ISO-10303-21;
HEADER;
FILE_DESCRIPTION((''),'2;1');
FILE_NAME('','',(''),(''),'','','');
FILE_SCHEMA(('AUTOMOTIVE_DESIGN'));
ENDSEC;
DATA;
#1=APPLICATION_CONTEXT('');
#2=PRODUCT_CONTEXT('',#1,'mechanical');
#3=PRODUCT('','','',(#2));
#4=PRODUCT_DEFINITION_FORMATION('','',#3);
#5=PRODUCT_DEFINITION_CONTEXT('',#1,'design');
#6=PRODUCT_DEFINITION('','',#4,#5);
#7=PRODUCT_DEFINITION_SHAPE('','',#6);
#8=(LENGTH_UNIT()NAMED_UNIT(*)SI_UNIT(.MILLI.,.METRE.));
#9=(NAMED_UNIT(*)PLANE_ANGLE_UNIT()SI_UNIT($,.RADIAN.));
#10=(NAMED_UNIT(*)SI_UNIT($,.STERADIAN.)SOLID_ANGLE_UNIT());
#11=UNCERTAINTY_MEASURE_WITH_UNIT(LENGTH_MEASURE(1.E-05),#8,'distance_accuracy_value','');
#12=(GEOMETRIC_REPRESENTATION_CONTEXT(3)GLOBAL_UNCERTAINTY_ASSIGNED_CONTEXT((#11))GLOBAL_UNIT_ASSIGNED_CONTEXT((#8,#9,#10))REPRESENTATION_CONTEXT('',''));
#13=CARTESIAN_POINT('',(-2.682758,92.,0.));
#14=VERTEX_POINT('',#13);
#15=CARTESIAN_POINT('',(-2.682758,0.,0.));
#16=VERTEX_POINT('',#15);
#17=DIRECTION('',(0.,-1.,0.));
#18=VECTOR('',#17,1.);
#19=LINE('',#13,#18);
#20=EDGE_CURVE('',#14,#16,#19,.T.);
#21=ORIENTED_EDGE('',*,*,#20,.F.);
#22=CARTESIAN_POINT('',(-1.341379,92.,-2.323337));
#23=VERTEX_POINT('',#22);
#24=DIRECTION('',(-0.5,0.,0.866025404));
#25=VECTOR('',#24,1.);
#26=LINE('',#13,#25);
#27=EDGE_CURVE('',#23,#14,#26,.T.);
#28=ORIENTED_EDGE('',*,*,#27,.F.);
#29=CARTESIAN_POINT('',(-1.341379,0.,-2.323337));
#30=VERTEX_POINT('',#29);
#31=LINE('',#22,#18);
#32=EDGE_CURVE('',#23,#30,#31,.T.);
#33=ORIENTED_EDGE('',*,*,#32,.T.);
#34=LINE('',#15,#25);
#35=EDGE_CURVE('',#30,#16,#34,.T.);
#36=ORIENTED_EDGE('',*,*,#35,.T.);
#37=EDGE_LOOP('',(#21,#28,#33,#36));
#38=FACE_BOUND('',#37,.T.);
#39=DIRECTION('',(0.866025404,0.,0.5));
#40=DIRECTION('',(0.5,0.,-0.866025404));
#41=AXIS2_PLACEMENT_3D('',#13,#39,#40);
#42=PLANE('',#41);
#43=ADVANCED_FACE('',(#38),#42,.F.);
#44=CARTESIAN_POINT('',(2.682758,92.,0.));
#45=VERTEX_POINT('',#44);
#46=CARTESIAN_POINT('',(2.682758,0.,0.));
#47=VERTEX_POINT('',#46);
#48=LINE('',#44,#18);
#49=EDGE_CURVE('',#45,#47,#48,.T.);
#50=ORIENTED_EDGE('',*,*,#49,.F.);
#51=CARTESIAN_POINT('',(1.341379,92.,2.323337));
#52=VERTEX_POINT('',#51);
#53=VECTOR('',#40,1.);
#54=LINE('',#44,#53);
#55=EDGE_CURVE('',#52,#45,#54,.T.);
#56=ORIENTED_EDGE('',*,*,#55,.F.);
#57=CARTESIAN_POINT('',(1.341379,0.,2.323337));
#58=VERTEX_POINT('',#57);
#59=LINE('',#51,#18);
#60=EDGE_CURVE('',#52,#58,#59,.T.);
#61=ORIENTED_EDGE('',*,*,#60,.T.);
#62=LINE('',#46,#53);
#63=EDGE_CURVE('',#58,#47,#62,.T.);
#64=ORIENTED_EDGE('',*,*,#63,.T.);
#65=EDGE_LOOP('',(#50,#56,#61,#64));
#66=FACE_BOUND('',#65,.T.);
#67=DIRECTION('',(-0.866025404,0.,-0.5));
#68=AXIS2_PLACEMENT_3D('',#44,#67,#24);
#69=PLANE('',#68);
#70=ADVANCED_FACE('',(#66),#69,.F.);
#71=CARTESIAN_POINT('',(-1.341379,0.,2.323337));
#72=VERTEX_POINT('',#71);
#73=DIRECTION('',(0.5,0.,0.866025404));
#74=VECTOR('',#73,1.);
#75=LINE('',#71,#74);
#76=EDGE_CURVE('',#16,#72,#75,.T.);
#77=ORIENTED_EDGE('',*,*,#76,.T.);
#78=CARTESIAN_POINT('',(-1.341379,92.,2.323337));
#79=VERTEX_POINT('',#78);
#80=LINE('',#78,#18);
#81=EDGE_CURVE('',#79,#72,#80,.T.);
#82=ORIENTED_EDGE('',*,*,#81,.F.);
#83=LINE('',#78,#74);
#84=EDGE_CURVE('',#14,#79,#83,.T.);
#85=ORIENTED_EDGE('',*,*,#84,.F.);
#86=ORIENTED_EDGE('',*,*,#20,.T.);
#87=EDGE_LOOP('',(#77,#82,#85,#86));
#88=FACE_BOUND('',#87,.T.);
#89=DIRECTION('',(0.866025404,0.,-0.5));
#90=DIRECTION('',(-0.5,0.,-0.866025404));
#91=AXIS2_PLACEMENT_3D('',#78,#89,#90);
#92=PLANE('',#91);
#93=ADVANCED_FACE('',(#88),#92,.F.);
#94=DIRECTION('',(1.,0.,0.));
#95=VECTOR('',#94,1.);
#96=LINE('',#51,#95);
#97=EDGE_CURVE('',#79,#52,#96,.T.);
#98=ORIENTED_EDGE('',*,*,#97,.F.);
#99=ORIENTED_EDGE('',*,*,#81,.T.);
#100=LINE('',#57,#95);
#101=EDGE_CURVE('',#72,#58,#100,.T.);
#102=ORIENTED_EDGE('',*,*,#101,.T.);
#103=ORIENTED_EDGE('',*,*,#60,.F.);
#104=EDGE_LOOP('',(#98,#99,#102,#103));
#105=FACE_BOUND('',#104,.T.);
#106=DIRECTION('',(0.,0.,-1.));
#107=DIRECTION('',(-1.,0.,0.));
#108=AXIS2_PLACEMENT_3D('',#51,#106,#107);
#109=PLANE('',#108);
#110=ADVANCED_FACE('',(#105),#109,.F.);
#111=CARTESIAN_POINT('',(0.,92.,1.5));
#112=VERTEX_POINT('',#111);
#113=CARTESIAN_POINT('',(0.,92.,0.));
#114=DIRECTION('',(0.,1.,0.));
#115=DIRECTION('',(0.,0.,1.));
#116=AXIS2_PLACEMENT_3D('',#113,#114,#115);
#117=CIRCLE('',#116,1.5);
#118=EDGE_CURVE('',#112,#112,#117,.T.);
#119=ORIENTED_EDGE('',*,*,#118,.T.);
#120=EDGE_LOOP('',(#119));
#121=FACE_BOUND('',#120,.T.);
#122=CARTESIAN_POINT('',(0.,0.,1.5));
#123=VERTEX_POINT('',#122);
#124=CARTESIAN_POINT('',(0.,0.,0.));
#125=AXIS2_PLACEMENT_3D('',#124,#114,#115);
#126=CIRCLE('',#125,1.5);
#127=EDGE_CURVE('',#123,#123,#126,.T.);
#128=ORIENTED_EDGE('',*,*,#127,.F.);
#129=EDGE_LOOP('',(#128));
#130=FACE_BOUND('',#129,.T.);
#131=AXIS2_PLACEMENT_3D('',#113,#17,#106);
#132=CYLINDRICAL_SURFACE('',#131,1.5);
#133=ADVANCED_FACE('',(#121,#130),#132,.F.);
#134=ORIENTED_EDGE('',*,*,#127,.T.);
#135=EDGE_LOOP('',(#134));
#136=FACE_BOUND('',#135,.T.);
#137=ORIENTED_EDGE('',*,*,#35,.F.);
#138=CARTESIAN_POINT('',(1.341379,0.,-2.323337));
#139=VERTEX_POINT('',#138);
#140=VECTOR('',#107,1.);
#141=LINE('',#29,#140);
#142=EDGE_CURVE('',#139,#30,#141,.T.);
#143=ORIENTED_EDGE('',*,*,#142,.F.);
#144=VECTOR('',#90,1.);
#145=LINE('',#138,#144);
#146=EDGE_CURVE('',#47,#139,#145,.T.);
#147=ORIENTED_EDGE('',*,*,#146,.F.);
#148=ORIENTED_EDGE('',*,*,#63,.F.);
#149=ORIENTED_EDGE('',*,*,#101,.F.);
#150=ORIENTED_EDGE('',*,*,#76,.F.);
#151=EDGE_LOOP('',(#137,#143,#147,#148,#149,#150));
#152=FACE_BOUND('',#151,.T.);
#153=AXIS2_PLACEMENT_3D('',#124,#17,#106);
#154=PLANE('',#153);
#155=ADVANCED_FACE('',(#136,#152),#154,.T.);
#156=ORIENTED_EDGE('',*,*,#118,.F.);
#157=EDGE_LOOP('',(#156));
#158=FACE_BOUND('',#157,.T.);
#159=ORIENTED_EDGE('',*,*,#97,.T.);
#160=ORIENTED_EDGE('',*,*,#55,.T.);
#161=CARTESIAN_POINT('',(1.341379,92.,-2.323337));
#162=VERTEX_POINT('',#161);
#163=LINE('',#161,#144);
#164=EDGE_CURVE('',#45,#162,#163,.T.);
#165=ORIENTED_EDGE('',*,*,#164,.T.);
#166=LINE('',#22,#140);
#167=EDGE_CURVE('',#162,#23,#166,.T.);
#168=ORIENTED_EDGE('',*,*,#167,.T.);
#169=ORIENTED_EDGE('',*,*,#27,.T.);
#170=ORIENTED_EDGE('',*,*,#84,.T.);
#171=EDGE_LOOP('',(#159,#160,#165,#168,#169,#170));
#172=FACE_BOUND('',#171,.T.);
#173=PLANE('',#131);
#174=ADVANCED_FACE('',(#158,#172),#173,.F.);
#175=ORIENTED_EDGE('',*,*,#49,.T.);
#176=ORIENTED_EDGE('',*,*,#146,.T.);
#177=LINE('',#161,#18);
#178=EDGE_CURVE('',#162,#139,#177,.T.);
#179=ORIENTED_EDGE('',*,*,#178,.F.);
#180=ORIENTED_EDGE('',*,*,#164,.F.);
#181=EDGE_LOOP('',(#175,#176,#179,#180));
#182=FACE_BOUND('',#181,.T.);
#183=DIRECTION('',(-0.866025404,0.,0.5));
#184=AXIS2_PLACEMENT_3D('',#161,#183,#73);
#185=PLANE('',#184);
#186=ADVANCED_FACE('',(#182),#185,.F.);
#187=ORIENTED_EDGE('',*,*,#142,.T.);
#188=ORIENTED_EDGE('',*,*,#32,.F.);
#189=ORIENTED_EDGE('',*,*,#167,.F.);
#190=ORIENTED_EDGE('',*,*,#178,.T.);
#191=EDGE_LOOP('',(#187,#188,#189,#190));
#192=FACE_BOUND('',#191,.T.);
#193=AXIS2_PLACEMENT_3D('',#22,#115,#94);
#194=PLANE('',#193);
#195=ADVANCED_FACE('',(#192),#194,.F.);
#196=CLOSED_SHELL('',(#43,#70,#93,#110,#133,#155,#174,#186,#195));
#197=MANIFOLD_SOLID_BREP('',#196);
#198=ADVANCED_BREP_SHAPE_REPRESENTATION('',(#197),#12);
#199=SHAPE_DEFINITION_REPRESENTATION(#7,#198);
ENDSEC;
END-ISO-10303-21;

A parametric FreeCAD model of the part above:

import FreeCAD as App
import Part
import Sketcher
Q = App.Units.Quantity

doc = App.newDocument("Part")
body = doc.addObject("PartDesign::Body", "Body")

# Sketch on XZ plane
sketch1 = doc.addObject("Sketcher::SketchObject", "Sketch")
body.addObject(sketch1)
sketch1.AttachmentSupport = (doc.XZ_Plane, [""])
sketch1.MapMode = "FlatFace"
sketch1.addGeometry([
    Part.LineSegment(App.Vector(2.682758, 0, 0), App.Vector(1.341379, -2.323337, 0)),  # 0
    Part.LineSegment(App.Vector(1.341379, -2.323337, 0), App.Vector(-1.341379, -2.323337, 0)),  # 1
    Part.LineSegment(App.Vector(-1.341379, -2.323337, 0), App.Vector(-2.682758, 0, 0)),  # 2
    Part.LineSegment(App.Vector(-2.682758, 0, 0), App.Vector(-1.341379, 2.323337, 0)),  # 3
    Part.LineSegment(App.Vector(-1.341379, 2.323337, 0), App.Vector(1.341379, 2.323337, 0)),  # 4
    Part.LineSegment(App.Vector(1.341379, 2.323337, 0), App.Vector(2.682758, 0, 0)),  # 5
    Part.Circle(App.Vector(0, 0, 0), App.Vector(0, 0, 1), 1.5),  # 6
], False)
sketch1.addConstraint([
    Sketcher.Constraint("Coincident", 0, 2, 1, 1),
    Sketcher.Constraint("Coincident", 1, 2, 2, 1),
    Sketcher.Constraint("Coincident", 2, 2, 3, 1),
    Sketcher.Constraint("Coincident", 3, 2, 4, 1),
    Sketcher.Constraint("Coincident", 4, 2, 5, 1),
    Sketcher.Constraint("Coincident", 5, 2, 0, 1),
    Sketcher.Constraint("Horizontal", 1),
    Sketcher.Constraint("Horizontal", 4),
    Sketcher.Constraint("Coincident", 6, 3, -1, 1),
    Sketcher.Constraint("Symmetric", 0, 2, 3, 2, -1, 1),
    Sketcher.Constraint("Symmetric", 2, 2, 5, 2, -1, 1),
    Sketcher.Constraint("PointOnObject", 2, 2, -1),
    Sketcher.Constraint("Parallel", 2, 5),
    Sketcher.Constraint("Vertical", 1, 2, 3, 2),
    Sketcher.Constraint("Diameter", 6, Q("3 mm")),
    Sketcher.Constraint("Angle", 0, Q("-120 deg")),
    Sketcher.Constraint("DistanceX", 1, 2, 1, 1, Q("2.682758 mm")),
    Sketcher.Constraint("DistanceX", 2, 2, 1, 2, Q("1.341379 mm")),
])
pad1 = doc.addObject("PartDesign::Pad", "Pad")
body.addObject(pad1)
pad1.Profile = sketch1
pad1.Length = 92
pad1.Reversed = True

doc.recompute()
